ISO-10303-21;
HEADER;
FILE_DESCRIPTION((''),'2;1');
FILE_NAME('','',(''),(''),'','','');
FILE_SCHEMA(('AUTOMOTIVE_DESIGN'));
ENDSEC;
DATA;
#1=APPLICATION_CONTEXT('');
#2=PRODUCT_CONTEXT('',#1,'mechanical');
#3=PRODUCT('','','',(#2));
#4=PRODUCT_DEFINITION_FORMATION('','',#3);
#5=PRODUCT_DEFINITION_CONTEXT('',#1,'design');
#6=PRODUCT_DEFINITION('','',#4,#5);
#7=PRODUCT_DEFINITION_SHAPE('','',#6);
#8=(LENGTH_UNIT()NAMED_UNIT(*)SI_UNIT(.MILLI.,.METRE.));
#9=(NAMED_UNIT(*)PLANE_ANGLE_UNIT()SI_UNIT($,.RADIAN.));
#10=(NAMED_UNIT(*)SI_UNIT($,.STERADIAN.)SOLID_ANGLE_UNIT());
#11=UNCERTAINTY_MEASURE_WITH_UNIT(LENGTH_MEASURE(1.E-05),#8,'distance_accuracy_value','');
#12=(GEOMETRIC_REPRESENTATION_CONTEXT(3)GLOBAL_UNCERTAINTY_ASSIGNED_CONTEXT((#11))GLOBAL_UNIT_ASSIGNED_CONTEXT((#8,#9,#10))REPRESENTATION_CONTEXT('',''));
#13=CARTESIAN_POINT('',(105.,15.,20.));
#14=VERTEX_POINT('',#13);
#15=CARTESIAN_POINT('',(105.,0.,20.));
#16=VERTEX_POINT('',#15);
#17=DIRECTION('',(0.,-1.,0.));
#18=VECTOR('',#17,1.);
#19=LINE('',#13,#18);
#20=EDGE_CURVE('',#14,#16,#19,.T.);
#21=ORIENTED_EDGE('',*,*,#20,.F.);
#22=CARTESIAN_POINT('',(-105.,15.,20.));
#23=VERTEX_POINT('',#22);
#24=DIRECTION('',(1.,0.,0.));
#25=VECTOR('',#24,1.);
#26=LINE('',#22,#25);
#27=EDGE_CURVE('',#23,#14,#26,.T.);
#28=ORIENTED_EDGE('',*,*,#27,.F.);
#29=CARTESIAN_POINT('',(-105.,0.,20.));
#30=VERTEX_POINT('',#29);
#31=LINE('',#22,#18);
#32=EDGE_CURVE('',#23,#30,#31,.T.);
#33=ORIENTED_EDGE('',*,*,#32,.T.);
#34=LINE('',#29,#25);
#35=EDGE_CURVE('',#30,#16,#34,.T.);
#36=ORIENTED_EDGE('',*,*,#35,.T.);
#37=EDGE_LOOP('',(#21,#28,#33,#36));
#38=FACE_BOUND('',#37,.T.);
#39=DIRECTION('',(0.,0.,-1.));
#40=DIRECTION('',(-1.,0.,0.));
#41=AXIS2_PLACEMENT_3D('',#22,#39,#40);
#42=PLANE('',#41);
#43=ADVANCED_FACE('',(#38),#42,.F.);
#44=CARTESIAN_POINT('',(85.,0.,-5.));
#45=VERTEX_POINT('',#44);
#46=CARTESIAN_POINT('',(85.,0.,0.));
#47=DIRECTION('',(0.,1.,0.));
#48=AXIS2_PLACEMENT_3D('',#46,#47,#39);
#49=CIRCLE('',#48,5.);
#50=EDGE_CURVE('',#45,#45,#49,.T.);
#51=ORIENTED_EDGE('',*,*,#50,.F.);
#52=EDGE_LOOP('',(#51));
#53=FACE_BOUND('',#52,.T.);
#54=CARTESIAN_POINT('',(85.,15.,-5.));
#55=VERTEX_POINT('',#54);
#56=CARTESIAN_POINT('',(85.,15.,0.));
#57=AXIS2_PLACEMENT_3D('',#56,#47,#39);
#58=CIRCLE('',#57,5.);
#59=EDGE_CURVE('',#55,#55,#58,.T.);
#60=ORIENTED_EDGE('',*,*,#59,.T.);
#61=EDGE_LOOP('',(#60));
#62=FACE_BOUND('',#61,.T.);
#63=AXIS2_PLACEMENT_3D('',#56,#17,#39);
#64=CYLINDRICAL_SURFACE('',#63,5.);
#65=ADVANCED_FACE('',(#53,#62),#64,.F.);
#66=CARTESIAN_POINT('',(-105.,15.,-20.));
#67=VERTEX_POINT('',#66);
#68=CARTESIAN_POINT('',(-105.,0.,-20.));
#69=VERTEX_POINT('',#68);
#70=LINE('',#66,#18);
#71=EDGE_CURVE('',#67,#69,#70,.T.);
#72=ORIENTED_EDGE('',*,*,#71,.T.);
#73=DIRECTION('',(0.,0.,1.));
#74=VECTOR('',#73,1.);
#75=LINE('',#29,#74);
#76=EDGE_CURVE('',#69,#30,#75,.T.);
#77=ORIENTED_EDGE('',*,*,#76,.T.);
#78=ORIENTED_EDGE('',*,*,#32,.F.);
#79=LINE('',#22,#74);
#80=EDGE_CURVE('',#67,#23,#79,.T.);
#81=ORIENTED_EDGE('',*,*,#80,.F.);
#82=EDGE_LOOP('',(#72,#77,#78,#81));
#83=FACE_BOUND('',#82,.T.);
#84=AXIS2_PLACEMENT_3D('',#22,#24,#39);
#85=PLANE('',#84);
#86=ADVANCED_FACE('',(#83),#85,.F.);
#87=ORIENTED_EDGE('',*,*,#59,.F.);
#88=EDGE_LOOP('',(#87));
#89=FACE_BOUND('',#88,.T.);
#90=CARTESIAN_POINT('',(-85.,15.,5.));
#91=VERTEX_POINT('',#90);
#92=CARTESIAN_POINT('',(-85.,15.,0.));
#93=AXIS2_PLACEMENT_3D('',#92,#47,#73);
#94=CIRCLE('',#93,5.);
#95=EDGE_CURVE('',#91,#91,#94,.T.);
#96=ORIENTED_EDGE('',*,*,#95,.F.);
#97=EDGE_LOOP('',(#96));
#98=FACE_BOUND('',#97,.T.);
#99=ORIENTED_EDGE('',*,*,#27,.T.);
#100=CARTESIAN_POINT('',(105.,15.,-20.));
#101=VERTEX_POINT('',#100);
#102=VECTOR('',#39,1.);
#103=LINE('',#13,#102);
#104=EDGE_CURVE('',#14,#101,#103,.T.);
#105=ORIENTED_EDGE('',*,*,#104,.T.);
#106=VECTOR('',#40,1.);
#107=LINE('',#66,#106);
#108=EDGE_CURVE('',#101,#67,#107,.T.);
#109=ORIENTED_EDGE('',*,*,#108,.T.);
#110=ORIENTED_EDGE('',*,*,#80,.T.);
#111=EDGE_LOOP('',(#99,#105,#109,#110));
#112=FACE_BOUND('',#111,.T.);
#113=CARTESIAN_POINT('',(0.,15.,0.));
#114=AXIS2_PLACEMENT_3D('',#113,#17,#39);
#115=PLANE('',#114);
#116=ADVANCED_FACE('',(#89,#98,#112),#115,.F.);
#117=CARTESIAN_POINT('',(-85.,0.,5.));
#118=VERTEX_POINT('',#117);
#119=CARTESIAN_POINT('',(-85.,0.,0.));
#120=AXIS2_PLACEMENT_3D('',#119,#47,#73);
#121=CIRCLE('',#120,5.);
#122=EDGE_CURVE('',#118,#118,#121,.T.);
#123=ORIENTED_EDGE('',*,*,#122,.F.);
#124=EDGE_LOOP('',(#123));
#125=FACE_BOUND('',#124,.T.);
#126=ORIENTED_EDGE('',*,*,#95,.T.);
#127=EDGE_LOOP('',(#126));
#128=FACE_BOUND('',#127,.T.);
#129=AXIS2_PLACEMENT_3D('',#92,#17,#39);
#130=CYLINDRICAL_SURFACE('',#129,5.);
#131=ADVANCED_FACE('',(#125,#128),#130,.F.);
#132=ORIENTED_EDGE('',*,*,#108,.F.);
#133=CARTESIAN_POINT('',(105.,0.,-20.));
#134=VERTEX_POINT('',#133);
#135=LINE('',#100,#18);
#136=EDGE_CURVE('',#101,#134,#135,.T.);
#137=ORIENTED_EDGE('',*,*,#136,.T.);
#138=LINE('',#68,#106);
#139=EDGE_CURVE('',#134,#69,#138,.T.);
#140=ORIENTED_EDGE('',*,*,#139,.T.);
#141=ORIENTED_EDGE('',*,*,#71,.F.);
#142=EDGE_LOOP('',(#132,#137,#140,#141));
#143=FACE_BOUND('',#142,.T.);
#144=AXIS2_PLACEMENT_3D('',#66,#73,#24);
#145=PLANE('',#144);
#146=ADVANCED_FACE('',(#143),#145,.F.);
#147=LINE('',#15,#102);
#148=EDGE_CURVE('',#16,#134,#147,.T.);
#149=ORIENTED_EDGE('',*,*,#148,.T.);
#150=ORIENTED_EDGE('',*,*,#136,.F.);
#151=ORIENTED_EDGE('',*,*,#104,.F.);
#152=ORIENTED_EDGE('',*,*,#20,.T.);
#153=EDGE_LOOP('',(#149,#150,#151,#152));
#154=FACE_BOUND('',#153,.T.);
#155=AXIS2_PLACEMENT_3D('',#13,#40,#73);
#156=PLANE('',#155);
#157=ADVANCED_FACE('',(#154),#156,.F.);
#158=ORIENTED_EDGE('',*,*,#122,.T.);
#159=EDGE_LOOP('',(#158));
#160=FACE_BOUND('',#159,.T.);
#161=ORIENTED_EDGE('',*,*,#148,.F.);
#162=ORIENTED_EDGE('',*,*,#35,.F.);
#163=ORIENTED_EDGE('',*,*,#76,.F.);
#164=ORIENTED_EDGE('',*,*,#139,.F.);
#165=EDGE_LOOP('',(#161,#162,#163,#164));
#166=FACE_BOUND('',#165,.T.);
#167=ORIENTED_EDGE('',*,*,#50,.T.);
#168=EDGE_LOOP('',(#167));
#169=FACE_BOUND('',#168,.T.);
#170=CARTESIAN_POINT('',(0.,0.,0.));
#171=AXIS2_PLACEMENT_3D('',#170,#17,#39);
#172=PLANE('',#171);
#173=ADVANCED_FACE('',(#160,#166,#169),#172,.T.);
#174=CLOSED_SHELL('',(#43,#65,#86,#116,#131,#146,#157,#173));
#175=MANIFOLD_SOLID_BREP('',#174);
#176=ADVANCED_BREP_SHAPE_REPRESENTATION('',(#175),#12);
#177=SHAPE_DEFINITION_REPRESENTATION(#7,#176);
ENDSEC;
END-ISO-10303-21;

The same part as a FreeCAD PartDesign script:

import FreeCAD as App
import Part
import Sketcher

V = App.Vector
Q = App.Units.Quantity


def add_polygon(sketch, points):
    """Adds a closed chain of lines whose ends are joined by coincident constraints."""
    first, n = sketch.GeometryCount, len(points)
    for a, b in zip(points, points[1:] + points[:1]):
        sketch.addGeometry(Part.LineSegment(App.Vector(*a, 0), App.Vector(*b, 0)), False)
    for i in range(n):
        sketch.addConstraint(Sketcher.Constraint("Coincident", first + i, 2, first + (i + 1) % n, 1))

doc = App.newDocument("Part")
body = doc.addObject("PartDesign::Body", "Body")

# Sketch on XZ plane
sketch1 = body.newObject("Sketcher::SketchObject", "Sketch")
sketch1.AttachmentSupport = (doc.getObject("XZ_Plane"), [""])
sketch1.MapMode = "FlatFace"
add_polygon(sketch1, [(-105, -20), (-105, 20), (105, 20), (105, -20)])  # lines 0-3
sketch1.addGeometry(Part.Circle(V(-85, 0, 0), V(0, 0, 1), 5), False)  # 4
sketch1.addGeometry(Part.Circle(V(85, 0, 0), V(0, 0, 1), 5), False)  # 5
sketch1.addConstraint(Sketcher.Constraint("Vertical", 0))
sketch1.addConstraint(Sketcher.Constraint("Horizontal", 1))
sketch1.addConstraint(Sketcher.Constraint("Vertical", 2))
sketch1.addConstraint(Sketcher.Constraint("Horizontal", 3))
sketch1.addConstraint(Sketcher.Constraint("Equal", 4, 5))
sketch1.addConstraint(Sketcher.Constraint("Symmetric", 4, 3, 5, 3, -1, 1))
sketch1.addConstraint(Sketcher.Constraint("Symmetric", 0, 2, 2, 2, -1, 1))
sketch1.addConstraint(Sketcher.Constraint("PointOnObject", 4, 3, -1))
sketch1.addConstraint(Sketcher.Constraint("Diameter", 4, Q("10 mm")))
sketch1.addConstraint(Sketcher.Constraint("DistanceX", 1, 1, 1, 2, Q("210 mm")))
sketch1.addConstraint(Sketcher.Constraint("DistanceY", 0, 1, 0, 2, Q("40 mm")))
sketch1.addConstraint(Sketcher.Constraint("DistanceX", 4, 3, -1, 1, Q("85 mm")))
pad1 = body.newObject("PartDesign::Pad", "Pad")
pad1.Profile = sketch1
pad1.Length = 15
pad1.Reversed = True

doc.recompute()
